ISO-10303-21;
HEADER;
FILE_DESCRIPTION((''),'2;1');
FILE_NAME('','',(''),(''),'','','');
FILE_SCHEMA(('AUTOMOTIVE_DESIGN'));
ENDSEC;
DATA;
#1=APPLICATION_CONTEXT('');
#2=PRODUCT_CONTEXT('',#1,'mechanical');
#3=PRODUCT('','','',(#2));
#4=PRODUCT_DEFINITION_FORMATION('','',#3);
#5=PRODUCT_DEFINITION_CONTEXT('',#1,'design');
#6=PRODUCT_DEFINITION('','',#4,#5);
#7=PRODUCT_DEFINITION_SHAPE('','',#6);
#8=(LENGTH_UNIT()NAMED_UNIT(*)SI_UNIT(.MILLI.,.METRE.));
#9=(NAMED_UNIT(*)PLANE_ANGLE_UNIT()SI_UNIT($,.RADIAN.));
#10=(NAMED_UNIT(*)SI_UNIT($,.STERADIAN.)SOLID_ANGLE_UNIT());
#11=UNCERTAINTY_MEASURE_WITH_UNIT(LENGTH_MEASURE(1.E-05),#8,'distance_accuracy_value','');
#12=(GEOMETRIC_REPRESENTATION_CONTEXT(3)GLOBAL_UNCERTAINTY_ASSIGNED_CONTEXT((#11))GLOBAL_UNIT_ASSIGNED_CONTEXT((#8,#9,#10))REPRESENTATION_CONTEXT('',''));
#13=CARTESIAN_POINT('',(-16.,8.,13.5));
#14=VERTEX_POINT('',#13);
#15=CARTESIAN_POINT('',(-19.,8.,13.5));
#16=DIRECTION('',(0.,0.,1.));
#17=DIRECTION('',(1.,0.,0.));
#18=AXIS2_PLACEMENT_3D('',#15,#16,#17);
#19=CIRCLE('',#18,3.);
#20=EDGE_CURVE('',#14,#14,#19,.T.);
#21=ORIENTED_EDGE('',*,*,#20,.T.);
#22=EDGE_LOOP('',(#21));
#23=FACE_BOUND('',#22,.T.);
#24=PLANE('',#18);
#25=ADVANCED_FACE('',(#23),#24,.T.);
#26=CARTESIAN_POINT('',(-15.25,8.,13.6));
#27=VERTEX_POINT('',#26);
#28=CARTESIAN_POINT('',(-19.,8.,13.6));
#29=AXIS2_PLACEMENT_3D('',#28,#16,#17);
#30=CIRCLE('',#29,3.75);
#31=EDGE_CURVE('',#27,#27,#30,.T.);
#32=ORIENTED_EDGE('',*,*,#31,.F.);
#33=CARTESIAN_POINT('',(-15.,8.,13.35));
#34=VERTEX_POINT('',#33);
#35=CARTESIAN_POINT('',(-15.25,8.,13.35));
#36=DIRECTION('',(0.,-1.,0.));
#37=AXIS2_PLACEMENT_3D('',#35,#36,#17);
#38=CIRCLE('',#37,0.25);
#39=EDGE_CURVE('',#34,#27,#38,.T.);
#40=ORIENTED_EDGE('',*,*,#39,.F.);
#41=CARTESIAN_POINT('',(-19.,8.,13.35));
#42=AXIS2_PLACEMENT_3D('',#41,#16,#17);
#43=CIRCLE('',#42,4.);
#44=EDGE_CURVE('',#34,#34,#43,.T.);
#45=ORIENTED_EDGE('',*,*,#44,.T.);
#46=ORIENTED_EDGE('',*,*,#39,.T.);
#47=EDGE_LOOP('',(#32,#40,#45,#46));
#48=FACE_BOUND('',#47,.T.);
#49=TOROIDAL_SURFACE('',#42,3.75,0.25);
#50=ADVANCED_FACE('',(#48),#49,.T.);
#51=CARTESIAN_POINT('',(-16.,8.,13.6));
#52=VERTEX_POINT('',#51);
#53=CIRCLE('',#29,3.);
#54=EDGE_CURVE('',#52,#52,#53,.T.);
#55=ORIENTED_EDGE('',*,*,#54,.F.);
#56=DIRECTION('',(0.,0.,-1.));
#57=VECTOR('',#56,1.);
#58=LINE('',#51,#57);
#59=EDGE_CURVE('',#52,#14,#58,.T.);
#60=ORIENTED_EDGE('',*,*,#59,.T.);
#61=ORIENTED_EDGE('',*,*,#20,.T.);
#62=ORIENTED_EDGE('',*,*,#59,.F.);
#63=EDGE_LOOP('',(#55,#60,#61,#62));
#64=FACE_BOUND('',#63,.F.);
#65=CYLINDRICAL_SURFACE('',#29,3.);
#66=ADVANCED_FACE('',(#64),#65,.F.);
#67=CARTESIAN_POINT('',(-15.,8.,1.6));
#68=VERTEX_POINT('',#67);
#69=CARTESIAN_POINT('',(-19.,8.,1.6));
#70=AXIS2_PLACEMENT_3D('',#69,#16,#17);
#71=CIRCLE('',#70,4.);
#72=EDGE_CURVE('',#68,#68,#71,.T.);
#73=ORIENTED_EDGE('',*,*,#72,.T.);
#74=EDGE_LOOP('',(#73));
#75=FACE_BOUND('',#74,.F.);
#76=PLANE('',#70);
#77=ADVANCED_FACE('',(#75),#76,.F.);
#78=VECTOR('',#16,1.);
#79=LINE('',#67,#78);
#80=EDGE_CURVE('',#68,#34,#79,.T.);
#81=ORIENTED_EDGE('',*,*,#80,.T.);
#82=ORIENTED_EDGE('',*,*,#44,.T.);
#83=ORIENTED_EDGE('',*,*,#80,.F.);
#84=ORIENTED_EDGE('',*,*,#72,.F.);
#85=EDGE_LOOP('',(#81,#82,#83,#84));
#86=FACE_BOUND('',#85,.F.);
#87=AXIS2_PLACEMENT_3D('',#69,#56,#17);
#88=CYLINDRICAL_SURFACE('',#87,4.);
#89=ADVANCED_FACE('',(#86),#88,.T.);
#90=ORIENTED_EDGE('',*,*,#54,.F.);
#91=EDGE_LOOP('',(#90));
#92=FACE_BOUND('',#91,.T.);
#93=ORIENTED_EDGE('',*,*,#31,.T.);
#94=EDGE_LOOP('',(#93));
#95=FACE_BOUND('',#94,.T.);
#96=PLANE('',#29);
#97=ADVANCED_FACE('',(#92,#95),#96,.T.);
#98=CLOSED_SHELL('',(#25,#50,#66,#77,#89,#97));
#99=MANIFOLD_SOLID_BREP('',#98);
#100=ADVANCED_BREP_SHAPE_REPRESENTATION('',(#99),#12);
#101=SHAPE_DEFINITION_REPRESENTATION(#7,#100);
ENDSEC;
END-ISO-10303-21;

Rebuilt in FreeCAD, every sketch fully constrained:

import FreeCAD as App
import Part
import Sketcher
from FreeCAD import Vector


def edges_at(feature, points):
    """Names of the edges that pass closest to the given points."""
    edges = feature.Shape.Edges
    near = lambda p: min(range(len(edges)), key=lambda i: edges[i].distToShape(Part.Vertex(*p))[0])
    return sorted({f"Edge{near(p) + 1}" for p in points})

doc = App.newDocument("Part")
body = doc.addObject("PartDesign::Body", "Body")

# Sketch on XY plane
sketch1 = body.newObject("Sketcher::SketchObject", "Sketch")
sketch1.AttachmentSupport = (doc.getObject("XY_Plane"), [""])
sketch1.MapMode = "FlatFace"
sketch1.AttachmentOffset = App.Placement(Vector(0, 0, 1.6), App.Rotation())
sketch1.addGeometry(Part.Circle(Vector(-19, 8, 0), Vector(0, 0, 1), 4), False)
sketch1.addConstraint([
    Sketcher.Constraint("Diameter", 0, 8.0),
    Sketcher.Constraint("DistanceX", 0, 3, -1, 1, 19.0),
    Sketcher.Constraint("DistanceY", -1, 1, 0, 3, 8.0),
])
pad1 = body.newObject("PartDesign::Pad", "Pad")
pad1.Profile = sketch1
pad1.Length = 12
doc.recompute()

fillet = body.newObject("PartDesign::Fillet", "Fillet")
fillet.Base = (pad1, edges_at(pad1, [(-23, 8, 13.6)]))
fillet.Radius = 0.25

# Sketch on XY plane
sketch2 = body.newObject("Sketcher::SketchObject", "Sketch001")
sketch2.AttachmentSupport = (doc.getObject("XY_Plane"), [""])
sketch2.MapMode = "FlatFace"
sketch2.AttachmentOffset = App.Placement(Vector(0, 0, 13.6), App.Rotation())
sketch2.addGeometry(Part.Circle(Vector(-19, 8, 0), Vector(0, 0, 1), 3), False)
sketch2.addConstraint([
    Sketcher.Constraint("Diameter", 0, 6.0),
    Sketcher.Constraint("DistanceX", 0, 3, -1, 1, 19.0),
    Sketcher.Constraint("DistanceY", -1, 1, 0, 3, 8.0),
])
pocket1 = body.newObject("PartDesign::Pocket", "Pocket")
pocket1.Profile = sketch2
pocket1.Length = 0.1

doc.recompute()
